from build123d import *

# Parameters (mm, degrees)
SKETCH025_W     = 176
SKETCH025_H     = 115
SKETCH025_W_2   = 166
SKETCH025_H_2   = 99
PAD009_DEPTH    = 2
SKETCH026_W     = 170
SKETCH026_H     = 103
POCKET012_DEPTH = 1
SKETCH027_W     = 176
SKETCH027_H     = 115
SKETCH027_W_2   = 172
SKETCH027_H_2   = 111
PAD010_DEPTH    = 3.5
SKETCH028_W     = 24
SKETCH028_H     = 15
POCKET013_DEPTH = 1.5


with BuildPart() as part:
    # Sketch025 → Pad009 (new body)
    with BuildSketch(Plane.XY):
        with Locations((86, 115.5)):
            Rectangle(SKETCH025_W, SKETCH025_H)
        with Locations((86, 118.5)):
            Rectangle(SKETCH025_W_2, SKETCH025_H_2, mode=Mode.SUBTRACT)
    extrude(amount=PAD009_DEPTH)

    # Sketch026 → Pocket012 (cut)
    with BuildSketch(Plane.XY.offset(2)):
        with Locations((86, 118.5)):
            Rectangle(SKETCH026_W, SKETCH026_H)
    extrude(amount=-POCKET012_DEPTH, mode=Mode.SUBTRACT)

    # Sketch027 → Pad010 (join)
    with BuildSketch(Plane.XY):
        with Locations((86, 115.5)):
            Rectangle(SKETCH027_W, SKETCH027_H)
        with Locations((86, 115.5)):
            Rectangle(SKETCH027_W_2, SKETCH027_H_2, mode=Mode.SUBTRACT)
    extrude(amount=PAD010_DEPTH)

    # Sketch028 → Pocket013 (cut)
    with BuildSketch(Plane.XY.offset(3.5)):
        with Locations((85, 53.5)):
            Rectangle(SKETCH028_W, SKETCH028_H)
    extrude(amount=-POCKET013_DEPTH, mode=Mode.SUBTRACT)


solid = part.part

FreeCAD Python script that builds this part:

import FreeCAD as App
import Part
import Sketcher

V = App.Vector


def add_polygon(sketch, points):
    """Adds a closed chain of lines whose ends are joined by coincident constraints."""
    first, n = sketch.GeometryCount, len(points)
    for a, b in zip(points, points[1:] + points[:1]):
        sketch.addGeometry(Part.LineSegment(App.Vector(*a, 0), App.Vector(*b, 0)), False)
    for i in range(n):
        sketch.addConstraint(Sketcher.Constraint("Coincident", first + i, 2, first + (i + 1) % n, 1))

doc = App.newDocument("Part")
params = doc.addObject("Spreadsheet::Sheet", "Params")
for row, (alias, value) in enumerate([
    ("sketch1_width", "176 mm"),
    ("sketch1_width2", "166 mm"),
    ("sketch1_height", "115 mm"),
    ("sketch1_height2", "99 mm"),
    ("pad1_length", "2 mm"),
    ("sketch2_width", "170 mm"),
    ("sketch2_height", "103 mm"),
    ("pocket1_length", "1 mm"),
    ("sketch3_width", "176 mm"),
    ("sketch3_width2", "172 mm"),
    ("sketch3_height", "115 mm"),
    ("sketch3_height2", "111 mm"),
    ("pad2_length", "3.5 mm"),
    ("sketch4_width", "24 mm"),
    ("sketch4_height", "15 mm"),
    ("pocket2_length", "1.5 mm"),
], start=1):
    params.set(f"A{row}", alias)
    params.set(f"B{row}", "=" + value)
    params.setAlias(f"B{row}", alias)

body = doc.addObject("PartDesign::Body", "Body")

# Sketch on XY plane
sketch1 = body.newObject("Sketcher::SketchObject", "Sketch")
sketch1.AttachmentSupport = (doc.getObject("XY_Plane"), [""])
sketch1.MapMode = "FlatFace"
add_polygon(sketch1, [(-2, 173), (-2, 58), (174, 58), (174, 173)])  # lines 0-3
add_polygon(sketch1, [(169, 69), (3, 69), (3, 168), (169, 168)])  # lines 4-7
sketch1.addConstraint([
    Sketcher.Constraint("Vertical", 0),
    Sketcher.Constraint("Horizontal", 1),
    Sketcher.Constraint("Vertical", 2),
    Sketcher.Constraint("Horizontal", 3),
    Sketcher.Constraint("Horizontal", 4),
    Sketcher.Constraint("Vertical", 5),
    Sketcher.Constraint("Horizontal", 6),
    Sketcher.Constraint("Vertical", 7),
    Sketcher.Constraint("DistanceX", 1, 1, 1, 2, 176.0),
    Sketcher.Constraint("DistanceX", 4, 2, 4, 1, 166.0),
    Sketcher.Constraint("DistanceY", 0, 2, 0, 1, 115.0),
    Sketcher.Constraint("DistanceY", 5, 1, 5, 2, 99.0),
    Sketcher.Constraint("DistanceX", 0, 2, -1, 1, 2.0),
    Sketcher.Constraint("DistanceY", -1, 1, 0, 2, 58.0),
    Sketcher.Constraint("DistanceX", -1, 1, 4, 2, 3.0),
    Sketcher.Constraint("DistanceY", -1, 1, 4, 2, 69.0),
])
sketch1.setExpression("Constraints[16]", "Params.sketch1_width")
sketch1.setExpression("Constraints[17]", "Params.sketch1_width2")
sketch1.setExpression("Constraints[18]", "Params.sketch1_height")
sketch1.setExpression("Constraints[19]", "Params.sketch1_height2")
pad1 = body.newObject("PartDesign::Pad", "Pad")
pad1.Profile = sketch1
pad1.setExpression("Length", "Params.pad1_length")

# Sketch on XY plane
sketch2 = body.newObject("Sketcher::SketchObject", "Sketch001")
sketch2.AttachmentSupport = (doc.getObject("XY_Plane"), [""])
sketch2.MapMode = "FlatFace"
sketch2.AttachmentOffset = App.Placement(V(0, 0, 2), App.Rotation())
add_polygon(sketch2, [(1, 170), (1, 67), (171, 67), (171, 170)])  # lines 0-3
sketch2.addConstraint([
    Sketcher.Constraint("Vertical", 0),
    Sketcher.Constraint("Horizontal", 1),
    Sketcher.Constraint("Vertical", 2),
    Sketcher.Constraint("Horizontal", 3),
    Sketcher.Constraint("DistanceX", 1, 1, 1, 2, 170.0),
    Sketcher.Constraint("DistanceY", 0, 2, 0, 1, 103.0),
    Sketcher.Constraint("DistanceX", -1, 1, 0, 2, 1.0),
    Sketcher.Constraint("DistanceY", -1, 1, 0, 2, 67.0),
])
sketch2.setExpression("Constraints[8]", "Params.sketch2_width")
sketch2.setExpression("Constraints[9]", "Params.sketch2_height")
pocket1 = body.newObject("PartDesign::Pocket", "Pocket")
pocket1.Profile = sketch2
pocket1.setExpression("Length", "Params.pocket1_length")

# Sketch on XY plane
sketch3 = body.newObject("Sketcher::SketchObject", "Sketch002")
sketch3.AttachmentSupport = (doc.getObject("XY_Plane"), [""])
sketch3.MapMode = "FlatFace"
add_polygon(sketch3, [(-2, 173), (-2, 58), (174, 58), (174, 173)])  # lines 0-3
add_polygon(sketch3, [(172, 60), (0, 60), (0, 171), (172, 171)])  # lines 4-7
sketch3.addConstraint([
    Sketcher.Constraint("Vertical", 0),
    Sketcher.Constraint("Horizontal", 1),
    Sketcher.Constraint("Vertical", 2),
    Sketcher.Constraint("Horizontal", 3),
    Sketcher.Constraint("Horizontal", 4),
    Sketcher.Constraint("Vertical", 5),
    Sketcher.Constraint("Horizontal", 6),
    Sketcher.Constraint("Vertical", 7),
    Sketcher.Constraint("PointOnObject", 4, 2, -2),
    Sketcher.Constraint("DistanceX", 1, 1, 1, 2, 176.0),
    Sketcher.Constraint("DistanceX", 4, 2, 4, 1, 172.0),
    Sketcher.Constraint("DistanceY", 0, 2, 0, 1, 115.0),
    Sketcher.Constraint("DistanceY", 5, 1, 5, 2, 111.0),
    Sketcher.Constraint("DistanceX", 0, 2, -1, 1, 2.0),
    Sketcher.Constraint("DistanceY", -1, 1, 0, 2, 58.0),
    Sketcher.Constraint("DistanceY", -1, 1, 4, 2, 60.0),
])
sketch3.setExpression("Constraints[17]", "Params.sketch3_width")
sketch3.setExpression("Constraints[18]", "Params.sketch3_width2")
sketch3.setExpression("Constraints[19]", "Params.sketch3_height")
sketch3.setExpression("Constraints[20]", "Params.sketch3_height2")
pad2 = body.newObject("PartDesign::Pad", "Pad001")
pad2.Profile = sketch3
pad2.setExpression("Length", "Params.pad2_length")

# Sketch on XY plane
sketch4 = body.newObject("Sketcher::SketchObject", "Sketch003")
sketch4.AttachmentSupport = (doc.getObject("XY_Plane"), [""])
sketch4.MapMode = "FlatFace"
sketch4.AttachmentOffset = App.Placement(V(0, 0, 3.5), App.Rotation())
add_polygon(sketch4, [(73, 61), (73, 46), (97, 46), (97, 61)])  # lines 0-3
sketch4.addConstraint([
    Sketcher.Constraint("Vertical", 0),
    Sketcher.Constraint("Horizontal", 1),
    Sketcher.Constraint("Vertical", 2),
    Sketcher.Constraint("Horizontal", 3),
    Sketcher.Constraint("DistanceX", 1, 1, 1, 2, 24.0),
    Sketcher.Constraint("DistanceY", 0, 2, 0, 1, 15.0),
    Sketcher.Constraint("DistanceX", -1, 1, 0, 2, 73.0),
    Sketcher.Constraint("DistanceY", -1, 1, 0, 2, 46.0),
])
sketch4.setExpression("Constraints[8]", "Params.sketch4_width")
sketch4.setExpression("Constraints[9]", "Params.sketch4_height")
pocket2 = body.newObject("PartDesign::Pocket", "Pocket001")
pocket2.Profile = sketch4
pocket2.setExpression("Length", "Params.pocket2_length")

doc.recompute()
